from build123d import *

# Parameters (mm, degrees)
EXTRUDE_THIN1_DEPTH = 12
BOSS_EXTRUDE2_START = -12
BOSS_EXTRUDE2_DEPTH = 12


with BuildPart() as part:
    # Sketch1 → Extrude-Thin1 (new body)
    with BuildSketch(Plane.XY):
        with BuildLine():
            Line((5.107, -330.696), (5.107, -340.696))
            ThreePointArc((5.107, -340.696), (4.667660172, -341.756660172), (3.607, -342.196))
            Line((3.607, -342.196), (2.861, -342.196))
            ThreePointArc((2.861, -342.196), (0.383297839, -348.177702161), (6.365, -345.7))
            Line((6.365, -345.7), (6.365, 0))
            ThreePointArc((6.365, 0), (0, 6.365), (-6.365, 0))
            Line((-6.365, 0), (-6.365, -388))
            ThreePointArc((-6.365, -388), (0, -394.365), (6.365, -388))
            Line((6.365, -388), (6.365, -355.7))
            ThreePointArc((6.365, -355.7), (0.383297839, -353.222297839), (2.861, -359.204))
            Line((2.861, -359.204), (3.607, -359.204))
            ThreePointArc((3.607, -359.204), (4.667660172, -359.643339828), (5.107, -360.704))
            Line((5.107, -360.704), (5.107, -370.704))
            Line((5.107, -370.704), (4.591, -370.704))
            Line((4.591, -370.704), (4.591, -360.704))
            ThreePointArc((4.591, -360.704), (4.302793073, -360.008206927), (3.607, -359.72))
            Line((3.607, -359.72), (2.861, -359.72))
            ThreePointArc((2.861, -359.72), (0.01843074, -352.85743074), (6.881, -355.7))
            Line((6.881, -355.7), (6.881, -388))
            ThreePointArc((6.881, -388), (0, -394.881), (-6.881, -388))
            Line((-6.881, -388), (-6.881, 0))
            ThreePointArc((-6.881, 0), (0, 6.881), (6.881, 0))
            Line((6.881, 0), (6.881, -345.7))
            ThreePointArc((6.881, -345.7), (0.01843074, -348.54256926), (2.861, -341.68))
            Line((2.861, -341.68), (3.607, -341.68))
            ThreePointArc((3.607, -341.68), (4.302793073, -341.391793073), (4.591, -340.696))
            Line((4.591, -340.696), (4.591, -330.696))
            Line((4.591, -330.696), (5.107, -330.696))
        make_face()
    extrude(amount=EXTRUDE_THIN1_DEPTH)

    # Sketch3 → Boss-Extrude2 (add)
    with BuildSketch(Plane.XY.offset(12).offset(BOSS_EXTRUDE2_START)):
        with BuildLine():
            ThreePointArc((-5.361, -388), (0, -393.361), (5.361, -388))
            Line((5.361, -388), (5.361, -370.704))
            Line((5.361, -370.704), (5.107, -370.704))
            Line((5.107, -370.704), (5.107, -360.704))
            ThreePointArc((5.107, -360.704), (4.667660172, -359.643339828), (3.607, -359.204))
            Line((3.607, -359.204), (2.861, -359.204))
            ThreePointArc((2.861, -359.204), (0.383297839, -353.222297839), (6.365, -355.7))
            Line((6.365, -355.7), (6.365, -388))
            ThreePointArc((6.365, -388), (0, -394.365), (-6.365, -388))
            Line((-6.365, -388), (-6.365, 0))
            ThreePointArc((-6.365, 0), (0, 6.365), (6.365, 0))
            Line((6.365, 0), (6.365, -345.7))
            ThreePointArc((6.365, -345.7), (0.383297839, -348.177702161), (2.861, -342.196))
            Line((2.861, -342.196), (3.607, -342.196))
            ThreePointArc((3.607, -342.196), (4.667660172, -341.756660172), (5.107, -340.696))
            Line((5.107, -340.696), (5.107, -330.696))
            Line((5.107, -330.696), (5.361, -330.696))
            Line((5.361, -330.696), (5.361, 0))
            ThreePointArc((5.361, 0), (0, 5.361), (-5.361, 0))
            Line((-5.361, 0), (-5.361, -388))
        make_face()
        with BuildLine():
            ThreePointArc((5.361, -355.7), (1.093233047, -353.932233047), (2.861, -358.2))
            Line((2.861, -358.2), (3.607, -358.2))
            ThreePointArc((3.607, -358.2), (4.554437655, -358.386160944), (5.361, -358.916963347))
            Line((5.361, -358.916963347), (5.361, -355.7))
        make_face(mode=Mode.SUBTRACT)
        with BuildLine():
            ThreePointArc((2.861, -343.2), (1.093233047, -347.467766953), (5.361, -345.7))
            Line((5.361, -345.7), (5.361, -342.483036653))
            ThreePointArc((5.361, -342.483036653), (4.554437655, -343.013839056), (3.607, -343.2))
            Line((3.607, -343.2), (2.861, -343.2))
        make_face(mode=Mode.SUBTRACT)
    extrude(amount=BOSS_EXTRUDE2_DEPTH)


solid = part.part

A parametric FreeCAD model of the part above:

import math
import FreeCAD as App
import Part
import Sketcher

V = App.Vector

doc = App.newDocument("Part")
body = doc.addObject("PartDesign::Body", "Body")

# Sketch on XY plane
sketch1 = body.newObject("Sketcher::SketchObject", "Sketch")
sketch1.AttachmentSupport = (doc.getObject("XY_Plane"), [""])
sketch1.MapMode = "FlatFace"
sketch1.addGeometry(Part.LineSegment(V(5.107, -340.696, 0), V(5.107, -330.696, 0)), False)
sketch1.addGeometry(Part.LineSegment(V(5.107, -330.696, 0), V(4.591, -330.696, 0)), False)
sketch1.addGeometry(Part.LineSegment(V(4.591, -330.696, 0), V(4.591, -340.696, 0)), False)
sketch1.addGeometry(Part.ArcOfCircle(Part.Circle(V(3.607, -340.696, 0), V(0, 0, 1), 0.984), math.radians(-90), math.radians(0)), False)
sketch1.addGeometry(Part.LineSegment(V(3.607, -341.68, 0), V(2.861, -341.68, 0)), False)
sketch1.addGeometry(Part.ArcOfCircle(Part.Circle(V(2.861, -345.7, 0), V(0, 0, 1), 4.02), math.radians(90), math.radians(360)), False)
sketch1.addGeometry(Part.LineSegment(V(6.881, -345.7, 0), V(6.881, 0, 0)), False)
sketch1.addGeometry(Part.ArcOfCircle(Part.Circle(V(0, 0, 0), V(0, 0, 1), 6.881), math.radians(0), math.radians(180)), False)
sketch1.addGeometry(Part.LineSegment(V(-6.881, 0, 0), V(-6.881, -388, 0)), False)
sketch1.addGeometry(Part.ArcOfCircle(Part.Circle(V(0, -388, 0), V(0, 0, 1), 6.881), math.radians(180), math.radians(360)), False)
sketch1.addGeometry(Part.LineSegment(V(6.881, -388, 0), V(6.881, -355.7, 0)), False)
sketch1.addGeometry(Part.ArcOfCircle(Part.Circle(V(2.861, -355.7, 0), V(0, 0, 1), 4.02), math.radians(0), math.radians(270)), False)
sketch1.addGeometry(Part.LineSegment(V(2.861, -359.72, 0), V(3.607, -359.72, 0)), False)
sketch1.addGeometry(Part.ArcOfCircle(Part.Circle(V(3.607, -360.704, 0), V(0, 0, 1), 0.984), math.radians(0), math.radians(90)), False)
sketch1.addGeometry(Part.LineSegment(V(4.591, -360.704, 0), V(4.591, -370.704, 0)), False)
sketch1.addGeometry(Part.LineSegment(V(4.591, -370.704, 0), V(5.107, -370.704, 0)), False)
sketch1.addGeometry(Part.LineSegment(V(5.107, -370.704, 0), V(5.107, -360.704, 0)), False)
sketch1.addGeometry(Part.ArcOfCircle(Part.Circle(V(3.607, -360.704, 0), V(0, 0, 1), 1.5), math.radians(0), math.radians(90)), False)
sketch1.addGeometry(Part.LineSegment(V(3.607, -359.204, 0), V(2.861, -359.204, 0)), False)
sketch1.addGeometry(Part.ArcOfCircle(Part.Circle(V(2.861, -355.7, 0), V(0, 0, 1), 3.504), math.radians(0), math.radians(270)), False)
sketch1.addGeometry(Part.LineSegment(V(6.365, -355.7, 0), V(6.365, -388, 0)), False)
sketch1.addGeometry(Part.ArcOfCircle(Part.Circle(V(0, -388, 0), V(0, 0, 1), 6.365), math.radians(180), math.radians(360)), False)
sketch1.addGeometry(Part.LineSegment(V(-6.365, -388, 0), V(-6.365, 0, 0)), False)
sketch1.addGeometry(Part.ArcOfCircle(Part.Circle(V(0, 0, 0), V(0, 0, 1), 6.365), math.radians(0), math.radians(180)), False)
sketch1.addGeometry(Part.LineSegment(V(6.365, 0, 0), V(6.365, -345.7, 0)), False)
sketch1.addGeometry(Part.ArcOfCircle(Part.Circle(V(2.861, -345.7, 0), V(0, 0, 1), 3.504), math.radians(90), math.radians(360)), False)
sketch1.addGeometry(Part.LineSegment(V(2.861, -342.196, 0), V(3.607, -342.196, 0)), False)
sketch1.addGeometry(Part.ArcOfCircle(Part.Circle(V(3.607, -340.696, 0), V(0, 0, 1), 1.5), math.radians(-90), math.radians(0)), False)
sketch1.addConstraint(Sketcher.Constraint("Coincident", 0, 2, 1, 1))
sketch1.addConstraint(Sketcher.Constraint("Coincident", 1, 2, 2, 1))
sketch1.addConstraint(Sketcher.Constraint("Tangent", 2, 2, 3, 2))
sketch1.addConstraint(Sketcher.Constraint("Tangent", 3, 1, 4, 1))
sketch1.addConstraint(Sketcher.Constraint("Tangent", 4, 2, 5, 1))
sketch1.addConstraint(Sketcher.Constraint("Tangent", 5, 2, 6, 1))
sketch1.addConstraint(Sketcher.Constraint("Tangent", 6, 2, 7, 1))
sketch1.addConstraint(Sketcher.Constraint("Tangent", 7, 2, 8, 1))
sketch1.addConstraint(Sketcher.Constraint("Tangent", 8, 2, 9, 1))
sketch1.addConstraint(Sketcher.Constraint("Tangent", 9, 2, 10, 1))
sketch1.addConstraint(Sketcher.Constraint("Tangent", 10, 2, 11, 1))
sketch1.addConstraint(Sketcher.Constraint("Tangent", 11, 2, 12, 1))
sketch1.addConstraint(Sketcher.Constraint("Tangent", 12, 2, 13, 2))
sketch1.addConstraint(Sketcher.Constraint("Tangent", 13, 1, 14, 1))
sketch1.addConstraint(Sketcher.Constraint("Coincident", 14, 2, 15, 1))
sketch1.addConstraint(Sketcher.Constraint("Coincident", 15, 2, 16, 1))
sketch1.addConstraint(Sketcher.Constraint("Tangent", 16, 2, 17, 1))
sketch1.addConstraint(Sketcher.Constraint("Tangent", 17, 2, 18, 1))
sketch1.addConstraint(Sketcher.Constraint("Tangent", 18, 2, 19, 2))
sketch1.addConstraint(Sketcher.Constraint("Tangent", 19, 1, 20, 1))
sketch1.addConstraint(Sketcher.Constraint("Tangent", 20, 2, 21, 2))
sketch1.addConstraint(Sketcher.Constraint("Tangent", 21, 1, 22, 1))
sketch1.addConstraint(Sketcher.Constraint("Tangent", 22, 2, 23, 2))
sketch1.addConstraint(Sketcher.Constraint("Tangent", 23, 1, 24, 1))
sketch1.addConstraint(Sketcher.Constraint("Tangent", 24, 2, 25, 2))
sketch1.addConstraint(Sketcher.Constraint("Tangent", 25, 1, 26, 1))
sketch1.addConstraint(Sketcher.Constraint("Tangent", 26, 2, 27, 1))
sketch1.addConstraint(Sketcher.Constraint("Tangent", 27, 2, 0, 1))
sketch1.addConstraint(Sketcher.Constraint("Vertical", 0))
sketch1.addConstraint(Sketcher.Constraint("Horizontal", 1))
sketch1.addConstraint(Sketcher.Constraint("Vertical", 2))
sketch1.addConstraint(Sketcher.Constraint("Horizontal", 4))
sketch1.addConstraint(Sketcher.Constraint("Vertical", 6))
sketch1.addConstraint(Sketcher.Constraint("Vertical", 8))
sketch1.addConstraint(Sketcher.Constraint("Vertical", 10))
sketch1.addConstraint(Sketcher.Constraint("Horizontal", 12))
sketch1.addConstraint(Sketcher.Constraint("Vertical", 14))
sketch1.addConstraint(Sketcher.Constraint("Horizontal", 15))
sketch1.addConstraint(Sketcher.Constraint("Vertical", 16))
sketch1.addConstraint(Sketcher.Constraint("Horizontal", 18))
sketch1.addConstraint(Sketcher.Constraint("Vertical", 20))
sketch1.addConstraint(Sketcher.Constraint("Vertical", 22))
sketch1.addConstraint(Sketcher.Constraint("Vertical", 24))
sketch1.addConstraint(Sketcher.Constraint("Horizontal", 26))
sketch1.addConstraint(Sketcher.Constraint("Coincident", 7, 3, -1, 1))
sketch1.addConstraint(Sketcher.Constraint("Coincident", 23, 3, -1, 1))
sketch1.addConstraint(Sketcher.Constraint("Coincident", 17, 3, 13, 3))
sketch1.addConstraint(Sketcher.Constraint("Coincident", 19, 3, 11, 3))
sketch1.addConstraint(Sketcher.Constraint("Coincident", 21, 3, 9, 3))
sketch1.addConstraint(Sketcher.Constraint("Coincident", 25, 3, 5, 3))
sketch1.addConstraint(Sketcher.Constraint("Coincident", 27, 3, 3, 3))
sketch1.addConstraint(Sketcher.Constraint("Equal", 7, 9))
sketch1.addConstraint(Sketcher.Constraint("Equal", 5, 11))
sketch1.addConstraint(Sketcher.Constraint("Equal", 3, 13))
sketch1.addConstraint(Sketcher.Constraint("Vertical", 3, 3, 13, 3))
sketch1.addConstraint(Sketcher.Constraint("Equal", 2, 14))
sketch1.addConstraint(Sketcher.Constraint("Radius", 17, 1.5))
sketch1.addConstraint(Sketcher.Constraint("DistanceY", 0, 1, 0, 2, 10.0))
sketch1.addConstraint(Sketcher.Constraint("DistanceY", 8, 2, 8, 1, 388.0))
sketch1.addConstraint(Sketcher.Constraint("Radius", 5, 4.02))
sketch1.addConstraint(Sketcher.Constraint("DistanceY", 6, 1, 6, 2, 345.7))
sketch1.addConstraint(Sketcher.Constraint("DistanceY", 10, 1, 10, 2, 32.3))
sketch1.addConstraint(Sketcher.Constraint("Radius", 3, 0.984))
sketch1.addConstraint(Sketcher.Constraint("Radius", 7, 6.881))
sketch1.addConstraint(Sketcher.Constraint("DistanceX", 4, 2, 4, 1, 0.746))
pad1 = body.newObject("PartDesign::Pad", "Pad")
pad1.Profile = sketch1
pad1.Length = 12

# Sketch on XY plane
sketch2 = body.newObject("Sketcher::SketchObject", "Sketch001")
sketch2.AttachmentSupport = (doc.getObject("XY_Plane"), [""])
sketch2.MapMode = "FlatFace"
sketch2.addGeometry(Part.ArcOfCircle(Part.Circle(V(0, -388, 0), V(0, 0, 1), 5.361), math.radians(180), math.radians(360)), False)
sketch2.addGeometry(Part.LineSegment(V(-5.361, -388, 0), V(-5.361, 0, 0)), False)
sketch2.addGeometry(Part.ArcOfCircle(Part.Circle(V(0, 0, 0), V(0, 0, 1), 5.361), math.radians(0), math.radians(180)), False)
sketch2.addGeometry(Part.LineSegment(V(5.361, 0, 0), V(5.361, -330.696, 0)), False)
sketch2.addGeometry(Part.LineSegment(V(5.361, -330.696, 0), V(5.107, -330.696, 0)), False)
sketch2.addGeometry(Part.LineSegment(V(5.107, -330.696, 0), V(5.107, -340.696, 0)), False)
sketch2.addGeometry(Part.ArcOfCircle(Part.Circle(V(3.607, -340.696, 0), V(0, 0, 1), 1.5), math.radians(-90), math.radians(0)), False)
sketch2.addGeometry(Part.LineSegment(V(3.607, -342.196, 0), V(2.861, -342.196, 0)), False)
sketch2.addGeometry(Part.ArcOfCircle(Part.Circle(V(2.861, -345.7, 0), V(0, 0, 1), 3.504), math.radians(90), math.radians(360)), False)
sketch2.addGeometry(Part.LineSegment(V(6.365, -345.7, 0), V(6.365, 0, 0)), False)
sketch2.addGeometry(Part.ArcOfCircle(Part.Circle(V(0, 0, 0), V(0, 0, 1), 6.365), math.radians(0), math.radians(180)), False)
sketch2.addGeometry(Part.LineSegment(V(-6.365, 0, 0), V(-6.365, -388, 0)), False)
sketch2.addGeometry(Part.ArcOfCircle(Part.Circle(V(0, -388, 0), V(0, 0, 1), 6.365), math.radians(180), math.radians(360)), False)
sketch2.addGeometry(Part.LineSegment(V(6.365, -388, 0), V(6.365, -355.7, 0)), False)
sketch2.addGeometry(Part.ArcOfCircle(Part.Circle(V(2.861, -355.7, 0), V(0, 0, 1), 3.504), math.radians(0), math.radians(270)), False)
sketch2.addGeometry(Part.LineSegment(V(2.861, -359.204, 0), V(3.607, -359.204, 0)), False)
sketch2.addGeometry(Part.ArcOfCircle(Part.Circle(V(3.607, -360.704, 0), V(0, 0, 1), 1.5), math.radians(0), math.radians(90)), False)
sketch2.addGeometry(Part.LineSegment(V(5.107, -360.704, 0), V(5.107, -370.704, 0)), False)
sketch2.addGeometry(Part.LineSegment(V(5.107, -370.704, 0), V(5.361, -370.704, 0)), False)
sketch2.addGeometry(Part.LineSegment(V(5.361, -370.704, 0), V(5.361, -388, 0)), False)
sketch2.addGeometry(Part.LineSegment(V(5.361, -355.7, 0), V(5.361, -358.916963, 0)), False)
sketch2.addGeometry(Part.ArcOfCircle(Part.Circle(V(3.607, -360.704, 0), V(0, 0, 1), 2.504), math.radians(45.534534), math.radians(90)), False)
sketch2.addGeometry(Part.LineSegment(V(3.607, -358.2, 0), V(2.861, -358.2, 0)), False)
sketch2.addGeometry(Part.ArcOfCircle(Part.Circle(V(2.861, -355.7, 0), V(0, 0, 1), 2.5), math.radians(0), math.radians(270)), False)
sketch2.addGeometry(Part.LineSegment(V(2.861, -343.2, 0), V(3.607, -343.2, 0)), False)
sketch2.addGeometry(Part.ArcOfCircle(Part.Circle(V(3.607, -340.696, 0), V(0, 0, 1), 2.504), math.radians(-90), math.radians(-45.534534)), False)
sketch2.addGeometry(Part.LineSegment(V(5.361, -342.483037, 0), V(5.361, -345.7, 0)), False)
sketch2.addGeometry(Part.ArcOfCircle(Part.Circle(V(2.861, -345.7, 0), V(0, 0, 1), 2.5), math.radians(90), math.radians(360)), False)
sketch2.addConstraint(Sketcher.Constraint("Tangent", 0, 1, 1, 1))
sketch2.addConstraint(Sketcher.Constraint("Tangent", 1, 2, 2, 2))
sketch2.addConstraint(Sketcher.Constraint("Tangent", 2, 1, 3, 1))
sketch2.addConstraint(Sketcher.Constraint("Coincident", 3, 2, 4, 1))
sketch2.addConstraint(Sketcher.Constraint("Coincident", 4, 2, 5, 1))
sketch2.addConstraint(Sketcher.Constraint("Tangent", 5, 2, 6, 2))
sketch2.addConstraint(Sketcher.Constraint("Tangent", 6, 1, 7, 1))
sketch2.addConstraint(Sketcher.Constraint("Tangent", 7, 2, 8, 1))
sketch2.addConstraint(Sketcher.Constraint("Tangent", 8, 2, 9, 1))
sketch2.addConstraint(Sketcher.Constraint("Tangent", 9, 2, 10, 1))
sketch2.addConstraint(Sketcher.Constraint("Tangent", 10, 2, 11, 1))
sketch2.addConstraint(Sketcher.Constraint("Tangent", 11, 2, 12, 1))
sketch2.addConstraint(Sketcher.Constraint("Tangent", 12, 2, 13, 1))
sketch2.addConstraint(Sketcher.Constraint("Tangent", 13, 2, 14, 1))
sketch2.addConstraint(Sketcher.Constraint("Tangent", 14, 2, 15, 1))
sketch2.addConstraint(Sketcher.Constraint("Tangent", 15, 2, 16, 2))
sketch2.addConstraint(Sketcher.Constraint("Tangent", 16, 1, 17, 1))
sketch2.addConstraint(Sketcher.Constraint("Coincident", 17, 2, 18, 1))
sketch2.addConstraint(Sketcher.Constraint("Coincident", 18, 2, 19, 1))
sketch2.addConstraint(Sketcher.Constraint("Tangent", 19, 2, 0, 2))
sketch2.addConstraint(Sketcher.Constraint("Coincident", 20, 2, 21, 1))
sketch2.addConstraint(Sketcher.Constraint("Tangent", 21, 2, 22, 1))
sketch2.addConstraint(Sketcher.Constraint("Tangent", 22, 2, 23, 2))
sketch2.addConstraint(Sketcher.Constraint("Tangent", 23, 1, 20, 1))
sketch2.addConstraint(Sketcher.Constraint("Tangent", 24, 2, 25, 1))
sketch2.addConstraint(Sketcher.Constraint("Coincident", 25, 2, 26, 1))
sketch2.addConstraint(Sketcher.Constraint("Tangent", 26, 2, 27, 2))
sketch2.addConstraint(Sketcher.Constraint("Tangent", 27, 1, 24, 1))
sketch2.addConstraint(Sketcher.Constraint("Vertical", 1))
sketch2.addConstraint(Sketcher.Constraint("Vertical", 3))
sketch2.addConstraint(Sketcher.Constraint("Horizontal", 4))
sketch2.addConstraint(Sketcher.Constraint("Vertical", 5))
sketch2.addConstraint(Sketcher.Constraint("Horizontal", 7))
sketch2.addConstraint(Sketcher.Constraint("Vertical", 9))
sketch2.addConstraint(Sketcher.Constraint("Vertical", 11))
sketch2.addConstraint(Sketcher.Constraint("Vertical", 13))
sketch2.addConstraint(Sketcher.Constraint("Horizontal", 15))
sketch2.addConstraint(Sketcher.Constraint("Vertical", 17))
sketch2.addConstraint(Sketcher.Constraint("Horizontal", 18))
sketch2.addConstraint(Sketcher.Constraint("Vertical", 19))
sketch2.addConstraint(Sketcher.Constraint("Vertical", 20))
sketch2.addConstraint(Sketcher.Constraint("Horizontal", 22))
sketch2.addConstraint(Sketcher.Constraint("Horizontal", 24))
sketch2.addConstraint(Sketcher.Constraint("Vertical", 26))
sketch2.addConstraint(Sketcher.Constraint("Coincident", 2, 3, -1, 1))
sketch2.addConstraint(Sketcher.Constraint("Coincident", 10, 3, -1, 1))
sketch2.addConstraint(Sketcher.Constraint("Coincident", 12, 3, 0, 3))
sketch2.addConstraint(Sketcher.Constraint("Coincident", 21, 3, 16, 3))
sketch2.addConstraint(Sketcher.Constraint("Coincident", 23, 3, 14, 3))
sketch2.addConstraint(Sketcher.Constraint("Coincident", 25, 3, 6, 3))
sketch2.addConstraint(Sketcher.Constraint("Coincident", 27, 3, 8, 3))
sketch2.addConstraint(Sketcher.Constraint("Equal", 0, 2))
sketch2.addConstraint(Sketcher.Constraint("Equal", 8, 14))
sketch2.addConstraint(Sketcher.Constraint("Equal", 6, 16))
sketch2.addConstraint(Sketcher.Constraint("Equal", 21, 25))
sketch2.addConstraint(Sketcher.Constraint("Vertical", 6, 3, 16, 3))
sketch2.addConstraint(Sketcher.Constraint("Vertical", 19, 2, 20, 2))
sketch2.addConstraint(Sketcher.Constraint("Equal", 5, 17))
sketch2.addConstraint(Sketcher.Constraint("Radius", 6, 1.5))
sketch2.addConstraint(Sketcher.Constraint("Radius", 23, 2.5))
sketch2.addConstraint(Sketcher.Constraint("DistanceY", 1, 1, 1, 2, 388.0))
sketch2.addConstraint(Sketcher.Constraint("DistanceY", 5, 2, 5, 1, 10.0))
sketch2.addConstraint(Sketcher.Constraint("DistanceY", 9, 1, 9, 2, 345.7))
sketch2.addConstraint(Sketcher.Constraint("DistanceY", 13, 1, 13, 2, 32.3))
sketch2.addConstraint(Sketcher.Constraint("Radius", 0, 5.361))
sketch2.addConstraint(Sketcher.Constraint("Radius", 8, 3.504))
sketch2.addConstraint(Sketcher.Constraint("DistanceX", 4, 2, 4, 1, 0.254))
pad2 = body.newObject("PartDesign::Pad", "Pad001")
pad2.Profile = sketch2
pad2.Length = 12

doc.recompute()
